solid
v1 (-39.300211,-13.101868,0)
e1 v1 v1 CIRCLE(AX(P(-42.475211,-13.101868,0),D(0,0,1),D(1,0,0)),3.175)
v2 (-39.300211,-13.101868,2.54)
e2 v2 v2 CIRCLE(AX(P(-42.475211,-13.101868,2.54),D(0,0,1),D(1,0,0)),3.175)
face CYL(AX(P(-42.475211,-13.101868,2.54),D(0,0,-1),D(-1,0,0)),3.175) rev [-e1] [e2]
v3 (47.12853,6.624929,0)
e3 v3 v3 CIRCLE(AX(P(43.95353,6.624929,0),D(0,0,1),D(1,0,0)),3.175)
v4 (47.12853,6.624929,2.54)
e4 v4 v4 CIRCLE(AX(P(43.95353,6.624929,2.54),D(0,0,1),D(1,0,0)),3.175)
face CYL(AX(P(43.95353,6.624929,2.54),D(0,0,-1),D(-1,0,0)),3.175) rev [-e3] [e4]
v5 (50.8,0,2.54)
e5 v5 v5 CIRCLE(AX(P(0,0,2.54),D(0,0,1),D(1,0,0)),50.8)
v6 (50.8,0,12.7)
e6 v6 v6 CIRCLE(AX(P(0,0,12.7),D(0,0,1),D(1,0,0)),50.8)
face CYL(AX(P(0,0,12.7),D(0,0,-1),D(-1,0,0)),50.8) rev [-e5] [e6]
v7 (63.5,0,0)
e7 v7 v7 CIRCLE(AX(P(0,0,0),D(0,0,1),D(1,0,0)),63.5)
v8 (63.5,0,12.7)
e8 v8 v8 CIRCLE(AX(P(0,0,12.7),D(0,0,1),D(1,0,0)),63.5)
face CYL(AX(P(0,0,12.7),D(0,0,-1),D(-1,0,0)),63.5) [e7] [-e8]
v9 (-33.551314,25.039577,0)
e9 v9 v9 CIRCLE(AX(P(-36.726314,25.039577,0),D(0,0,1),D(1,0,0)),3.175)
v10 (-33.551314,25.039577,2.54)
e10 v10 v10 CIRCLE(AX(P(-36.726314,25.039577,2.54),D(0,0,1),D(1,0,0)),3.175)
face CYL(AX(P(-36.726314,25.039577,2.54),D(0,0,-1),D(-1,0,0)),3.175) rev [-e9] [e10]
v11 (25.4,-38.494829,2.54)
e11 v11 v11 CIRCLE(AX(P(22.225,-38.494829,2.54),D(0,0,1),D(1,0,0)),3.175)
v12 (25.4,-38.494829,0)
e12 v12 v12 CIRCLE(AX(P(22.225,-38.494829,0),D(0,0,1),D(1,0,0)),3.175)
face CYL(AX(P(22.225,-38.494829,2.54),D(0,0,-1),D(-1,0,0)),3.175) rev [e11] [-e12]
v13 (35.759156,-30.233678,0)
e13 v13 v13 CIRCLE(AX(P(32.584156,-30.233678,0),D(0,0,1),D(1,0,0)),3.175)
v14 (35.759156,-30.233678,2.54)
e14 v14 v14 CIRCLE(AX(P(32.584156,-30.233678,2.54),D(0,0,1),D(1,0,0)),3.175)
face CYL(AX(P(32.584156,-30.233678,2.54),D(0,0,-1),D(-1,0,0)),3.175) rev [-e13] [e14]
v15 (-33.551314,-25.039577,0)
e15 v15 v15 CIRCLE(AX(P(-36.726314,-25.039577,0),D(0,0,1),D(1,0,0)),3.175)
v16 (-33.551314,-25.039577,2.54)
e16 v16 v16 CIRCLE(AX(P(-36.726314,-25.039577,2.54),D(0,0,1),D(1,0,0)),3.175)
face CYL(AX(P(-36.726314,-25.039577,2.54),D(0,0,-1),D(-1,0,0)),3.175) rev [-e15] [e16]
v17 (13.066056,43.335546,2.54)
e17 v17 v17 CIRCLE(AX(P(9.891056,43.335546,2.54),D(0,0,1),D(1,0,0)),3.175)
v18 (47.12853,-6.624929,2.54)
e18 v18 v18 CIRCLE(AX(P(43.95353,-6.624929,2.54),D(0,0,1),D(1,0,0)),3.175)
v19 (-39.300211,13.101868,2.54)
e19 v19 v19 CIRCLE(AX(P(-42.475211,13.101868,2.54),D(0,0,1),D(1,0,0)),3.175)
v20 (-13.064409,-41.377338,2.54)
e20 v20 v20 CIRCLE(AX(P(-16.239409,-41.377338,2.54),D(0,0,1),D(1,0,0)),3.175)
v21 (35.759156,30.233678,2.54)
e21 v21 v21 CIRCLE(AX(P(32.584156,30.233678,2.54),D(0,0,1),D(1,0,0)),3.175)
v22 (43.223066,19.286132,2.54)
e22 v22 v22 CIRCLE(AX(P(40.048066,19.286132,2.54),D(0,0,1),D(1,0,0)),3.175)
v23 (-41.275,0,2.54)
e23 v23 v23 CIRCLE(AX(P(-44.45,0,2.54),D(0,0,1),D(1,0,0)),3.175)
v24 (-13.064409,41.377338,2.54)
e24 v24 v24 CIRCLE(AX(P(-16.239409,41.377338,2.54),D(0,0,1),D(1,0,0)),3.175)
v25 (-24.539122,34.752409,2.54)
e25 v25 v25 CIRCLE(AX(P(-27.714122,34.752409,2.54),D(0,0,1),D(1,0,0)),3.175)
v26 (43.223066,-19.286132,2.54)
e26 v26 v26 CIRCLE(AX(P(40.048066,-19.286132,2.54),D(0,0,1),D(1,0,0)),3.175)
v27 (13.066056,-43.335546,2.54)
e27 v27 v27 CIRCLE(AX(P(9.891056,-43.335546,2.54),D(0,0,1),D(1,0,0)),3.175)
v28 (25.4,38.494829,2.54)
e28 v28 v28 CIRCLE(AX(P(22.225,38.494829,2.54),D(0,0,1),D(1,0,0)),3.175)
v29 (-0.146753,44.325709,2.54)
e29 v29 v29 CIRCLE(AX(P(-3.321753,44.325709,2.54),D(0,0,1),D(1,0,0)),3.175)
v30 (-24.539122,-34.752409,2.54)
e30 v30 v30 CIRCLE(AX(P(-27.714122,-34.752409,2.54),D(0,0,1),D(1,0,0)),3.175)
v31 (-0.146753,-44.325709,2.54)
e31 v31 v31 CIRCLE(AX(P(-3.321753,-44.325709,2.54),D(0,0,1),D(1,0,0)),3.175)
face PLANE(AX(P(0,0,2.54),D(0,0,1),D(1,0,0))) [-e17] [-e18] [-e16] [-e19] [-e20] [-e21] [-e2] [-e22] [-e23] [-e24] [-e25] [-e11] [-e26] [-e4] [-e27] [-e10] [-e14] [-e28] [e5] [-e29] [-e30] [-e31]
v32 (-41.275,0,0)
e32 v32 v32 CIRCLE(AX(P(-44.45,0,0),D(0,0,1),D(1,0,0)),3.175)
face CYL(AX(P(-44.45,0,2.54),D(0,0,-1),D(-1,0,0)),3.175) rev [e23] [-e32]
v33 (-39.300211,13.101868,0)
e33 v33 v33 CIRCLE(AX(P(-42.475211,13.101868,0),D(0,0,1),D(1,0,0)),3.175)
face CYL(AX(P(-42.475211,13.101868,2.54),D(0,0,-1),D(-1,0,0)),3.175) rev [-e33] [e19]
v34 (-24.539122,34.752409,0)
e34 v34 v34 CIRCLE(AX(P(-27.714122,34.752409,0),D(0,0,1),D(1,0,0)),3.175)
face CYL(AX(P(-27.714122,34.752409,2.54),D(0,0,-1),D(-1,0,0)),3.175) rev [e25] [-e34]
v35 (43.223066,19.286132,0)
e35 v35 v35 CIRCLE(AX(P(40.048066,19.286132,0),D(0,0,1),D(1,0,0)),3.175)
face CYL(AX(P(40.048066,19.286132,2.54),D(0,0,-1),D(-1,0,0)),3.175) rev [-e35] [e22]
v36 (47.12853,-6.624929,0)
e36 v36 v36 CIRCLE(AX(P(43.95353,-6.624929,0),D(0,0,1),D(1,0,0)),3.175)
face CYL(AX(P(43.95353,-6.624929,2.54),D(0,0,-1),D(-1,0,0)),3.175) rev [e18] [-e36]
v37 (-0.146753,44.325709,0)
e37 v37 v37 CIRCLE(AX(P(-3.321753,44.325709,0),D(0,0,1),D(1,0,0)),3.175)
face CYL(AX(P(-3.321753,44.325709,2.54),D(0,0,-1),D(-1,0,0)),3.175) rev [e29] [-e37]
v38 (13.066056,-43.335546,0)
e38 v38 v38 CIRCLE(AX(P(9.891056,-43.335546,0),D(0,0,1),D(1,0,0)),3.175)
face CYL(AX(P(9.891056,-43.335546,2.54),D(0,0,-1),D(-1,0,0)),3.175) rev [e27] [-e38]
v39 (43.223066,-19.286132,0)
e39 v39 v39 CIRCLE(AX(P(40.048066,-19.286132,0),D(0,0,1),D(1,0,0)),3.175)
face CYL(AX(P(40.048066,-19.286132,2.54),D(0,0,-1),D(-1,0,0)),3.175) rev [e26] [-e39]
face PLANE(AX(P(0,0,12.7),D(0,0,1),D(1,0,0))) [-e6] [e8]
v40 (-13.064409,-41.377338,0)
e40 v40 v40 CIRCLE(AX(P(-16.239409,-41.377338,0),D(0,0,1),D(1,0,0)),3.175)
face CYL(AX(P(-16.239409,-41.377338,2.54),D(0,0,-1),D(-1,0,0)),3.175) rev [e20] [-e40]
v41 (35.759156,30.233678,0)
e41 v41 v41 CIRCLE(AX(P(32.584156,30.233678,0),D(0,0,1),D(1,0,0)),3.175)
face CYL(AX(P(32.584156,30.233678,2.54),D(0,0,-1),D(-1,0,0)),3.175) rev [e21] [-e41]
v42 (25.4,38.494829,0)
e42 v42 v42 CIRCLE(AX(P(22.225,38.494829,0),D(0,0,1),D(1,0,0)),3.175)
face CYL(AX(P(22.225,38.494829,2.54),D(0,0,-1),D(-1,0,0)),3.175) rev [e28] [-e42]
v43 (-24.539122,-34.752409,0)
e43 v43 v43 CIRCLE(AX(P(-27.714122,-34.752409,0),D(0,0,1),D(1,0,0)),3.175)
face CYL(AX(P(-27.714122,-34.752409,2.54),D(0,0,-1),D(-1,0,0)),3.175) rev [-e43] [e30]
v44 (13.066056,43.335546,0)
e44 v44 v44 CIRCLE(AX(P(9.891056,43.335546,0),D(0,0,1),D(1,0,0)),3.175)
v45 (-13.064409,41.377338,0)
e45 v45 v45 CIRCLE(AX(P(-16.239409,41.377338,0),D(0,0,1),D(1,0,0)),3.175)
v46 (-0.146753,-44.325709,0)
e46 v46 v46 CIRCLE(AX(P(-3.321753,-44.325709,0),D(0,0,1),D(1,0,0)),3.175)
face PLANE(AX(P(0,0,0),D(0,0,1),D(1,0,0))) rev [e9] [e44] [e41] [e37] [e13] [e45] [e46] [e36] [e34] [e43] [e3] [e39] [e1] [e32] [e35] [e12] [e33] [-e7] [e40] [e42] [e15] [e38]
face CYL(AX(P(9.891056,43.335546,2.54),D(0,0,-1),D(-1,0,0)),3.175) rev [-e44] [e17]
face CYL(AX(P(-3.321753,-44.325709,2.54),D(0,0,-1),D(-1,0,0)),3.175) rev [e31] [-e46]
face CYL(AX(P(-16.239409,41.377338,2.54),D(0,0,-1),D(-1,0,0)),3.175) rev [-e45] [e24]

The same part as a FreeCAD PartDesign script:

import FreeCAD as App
import Part
import Sketcher
from FreeCAD import Vector
Q = App.Units.Quantity

doc = App.newDocument("Part")
body = doc.addObject("PartDesign::Body", "Body")

sketch1 = body.newObject("Sketcher::SketchObject", "Sketch")
sketch1.AttachmentSupport = (doc.getObject("XY_Plane"), [""])
sketch1.MapMode = "FlatFace"
sketch1.addGeometry([
    Part.Circle(Vector(0, 0, 0), Vector(0, 0, 1), 64),
    Part.Circle(Vector(0, 0, 0), Vector(0, 0, 1), 51),
], False)
sketch1.addConstraint([
    Sketcher.Constraint("Coincident", 0, 3, -1, 1),
    Sketcher.Constraint("Coincident", 1, 3, -1, 1),
    Sketcher.Constraint("Diameter", 0, Q("5 in")),
    Sketcher.Constraint("Diameter", 1, Q("4 in")),
])
pad1 = body.newObject("PartDesign::Pad", "Pad")
pad1.Profile = sketch1
pad1.Length = Q("0.5 in")

sketch2 = body.newObject("Sketcher::SketchObject", "Sketch001")
sketch2.AttachmentSupport = (doc.getObject("XY_Plane"), [""])
sketch2.MapMode = "FlatFace"
sketch2.addGeometry([
    Part.Circle(Vector(0, 0, 0), Vector(0, 0, 1), 50.8),
    Part.Circle(Vector(-36.7, -25, 0), Vector(0, 0, 1), 3.2),
    Part.Circle(Vector(-27.7, -34.8, 0), Vector(0, 0, 1), 3.2),
    Part.Circle(Vector(-16.2, -41.4, 0), Vector(0, 0, 1), 3.2),
    Part.Circle(Vector(-3.3, -44.3, 0), Vector(0, 0, 1), 3.2),
    Part.Circle(Vector(-42.5, -13.1, 0), Vector(0, 0, 1), 3.2),
    Part.Circle(Vector(9.9, -43.3, 0), Vector(0, 0, 1), 3.2),
    Part.Circle(Vector(22.2, -38.5, 0), Vector(0, 0, 1), 3.2),
    Part.Circle(Vector(32.6, -30.2, 0), Vector(0, 0, 1), 3.2),
    Part.Circle(Vector(40, -19.3, 0), Vector(0, 0, 1), 3.2),
    Part.Circle(Vector(44, -6.6, 0), Vector(0, 0, 1), 3.2),
    Part.Circle(Vector(-44.5, 0, 0), Vector(0, 0, 1), 3.2),
    Part.Circle(Vector(-42.5, 13.1, 0), Vector(0, 0, 1), 3.2),
    Part.Circle(Vector(-36.7, 25, 0), Vector(0, 0, 1), 3.2),
    Part.Circle(Vector(-27.7, 34.8, 0), Vector(0, 0, 1), 3.2),
    Part.Circle(Vector(-16.2, 41.4, 0), Vector(0, 0, 1), 3.2),
    Part.Circle(Vector(-3.3, 44.3, 0), Vector(0, 0, 1), 3.2),
    Part.Circle(Vector(44, 6.6, 0), Vector(0, 0, 1), 3.2),
    Part.Circle(Vector(40, 19.3, 0), Vector(0, 0, 1), 3.2),
    Part.Circle(Vector(9.9, 43.3, 0), Vector(0, 0, 1), 3.2),
    Part.Circle(Vector(22.2, 38.5, 0), Vector(0, 0, 1), 3.2),
    Part.Circle(Vector(32.6, 30.2, 0), Vector(0, 0, 1), 3.2),
], False)
sketch2.addConstraint([
    Sketcher.Constraint("Coincident", 0, 3, -1, 1),
    Sketcher.Constraint("Equal", 1, 2),
    Sketcher.Constraint("Equal", 2, 3),
    Sketcher.Constraint("Equal", 3, 4),
    Sketcher.Constraint("Equal", 4, 5),
    Sketcher.Constraint("Equal", 5, 6),
    Sketcher.Constraint("Equal", 6, 7),
    Sketcher.Constraint("Equal", 7, 8),
    Sketcher.Constraint("Equal", 8, 9),
    Sketcher.Constraint("Equal", 9, 10),
    Sketcher.Constraint("Equal", 10, 11),
    Sketcher.Constraint("Equal", 11, 12),
    Sketcher.Constraint("Equal", 12, 13),
    Sketcher.Constraint("Equal", 13, 14),
    Sketcher.Constraint("Equal", 14, 15),
    Sketcher.Constraint("Equal", 15, 16),
    Sketcher.Constraint("Equal", 16, 17),
    Sketcher.Constraint("Equal", 17, 18),
    Sketcher.Constraint("Equal", 18, 19),
    Sketcher.Constraint("Equal", 19, 20),
    Sketcher.Constraint("Equal", 20, 21),
    Sketcher.Constraint("Symmetric", 5, 3, 12, 3, -1),
    Sketcher.Constraint("Symmetric", 1, 3, 13, 3, -1),
    Sketcher.Constraint("Symmetric", 2, 3, 14, 3, -1),
    Sketcher.Constraint("Symmetric", 3, 3, 15, 3, -1),
    Sketcher.Constraint("Symmetric", 4, 3, 16, 3, -1),
    Sketcher.Constraint("Symmetric", 10, 3, 17, 3, -1),
    Sketcher.Constraint("Symmetric", 9, 3, 18, 3, -1),
    Sketcher.Constraint("Symmetric", 6, 3, 19, 3, -1),
    Sketcher.Constraint("Symmetric", 7, 3, 20, 3, -1),
    Sketcher.Constraint("Symmetric", 8, 3, 21, 3, -1),
    Sketcher.Constraint("PointOnObject", 11, 3, -1),
    Sketcher.Constraint("Diameter", 0, Q("4 in")),
    Sketcher.Constraint("Diameter", 1, Q("0.25 in")),
    Sketcher.Constraint("DistanceX", 11, 3, -1, 1, Q("1.75 in")),
    Sketcher.Constraint("DistanceX", -1, 1, 7, 3, Q("0.875 in")),
    Sketcher.Constraint("DistanceY", 6, 3, 10, 3, Q("1.4452999 in")),
    Sketcher.Constraint("DistanceY", 4, 3, 2, 3, Q("9.573299 mm")),
    Sketcher.Constraint("DistanceX", 6, 3, 8, 3, Q("22.6931 mm")),
    Sketcher.Constraint("DistanceY", 7, 3, 10, 3, Q("31.8699 mm")),
    Sketcher.Constraint("DistanceX", 2, 3, -1, 1, Q("27.714122 mm")),
    Sketcher.Constraint("DistanceY", 2, 3, -1, 1, Q("34.752409 mm")),
    Sketcher.Constraint("DistanceX", 3, 3, -1, 1, Q("16.239409 mm")),
    Sketcher.Constraint("DistanceY", 3, 3, -1, 1, Q("41.377338 mm")),
    Sketcher.Constraint("DistanceX", 5, 3, -1, 1, Q("42.475211 mm")),
    Sketcher.Constraint("DistanceY", 7, 3, -1, 1, Q("38.494829 mm")),
    Sketcher.Constraint("DistanceY", 8, 3, -1, 1, Q("30.233678 mm")),
    Sketcher.Constraint("DistanceX", -1, 1, 10, 3, Q("43.95353 mm")),
    Sketcher.Constraint("DistanceX", 1, 3, 2, 3, Q("9.012192 mm")),
    Sketcher.Constraint("DistanceY", 3, 3, 1, 3, Q("16.337762 mm")),
    Sketcher.Constraint("DistanceX", 2, 3, 4, 3, Q("24.392369 mm")),
    Sketcher.Constraint("DistanceY", 1, 3, 5, 3, Q("11.937709 mm")),
    Sketcher.Constraint("DistanceX", 4, 3, 6, 3, Q("13.212808 mm")),
    Sketcher.Constraint("DistanceX", 8, 3, 9, 3, Q("7.46391 mm")),
    Sketcher.Constraint("DistanceY", 9, 3, 17, 3, Q("25.911061 mm")),
])
pad2 = body.newObject("PartDesign::Pad", "Pad001")
pad2.Profile = sketch2
pad2.Length = Q("0.1 in")

doc.recompute()
